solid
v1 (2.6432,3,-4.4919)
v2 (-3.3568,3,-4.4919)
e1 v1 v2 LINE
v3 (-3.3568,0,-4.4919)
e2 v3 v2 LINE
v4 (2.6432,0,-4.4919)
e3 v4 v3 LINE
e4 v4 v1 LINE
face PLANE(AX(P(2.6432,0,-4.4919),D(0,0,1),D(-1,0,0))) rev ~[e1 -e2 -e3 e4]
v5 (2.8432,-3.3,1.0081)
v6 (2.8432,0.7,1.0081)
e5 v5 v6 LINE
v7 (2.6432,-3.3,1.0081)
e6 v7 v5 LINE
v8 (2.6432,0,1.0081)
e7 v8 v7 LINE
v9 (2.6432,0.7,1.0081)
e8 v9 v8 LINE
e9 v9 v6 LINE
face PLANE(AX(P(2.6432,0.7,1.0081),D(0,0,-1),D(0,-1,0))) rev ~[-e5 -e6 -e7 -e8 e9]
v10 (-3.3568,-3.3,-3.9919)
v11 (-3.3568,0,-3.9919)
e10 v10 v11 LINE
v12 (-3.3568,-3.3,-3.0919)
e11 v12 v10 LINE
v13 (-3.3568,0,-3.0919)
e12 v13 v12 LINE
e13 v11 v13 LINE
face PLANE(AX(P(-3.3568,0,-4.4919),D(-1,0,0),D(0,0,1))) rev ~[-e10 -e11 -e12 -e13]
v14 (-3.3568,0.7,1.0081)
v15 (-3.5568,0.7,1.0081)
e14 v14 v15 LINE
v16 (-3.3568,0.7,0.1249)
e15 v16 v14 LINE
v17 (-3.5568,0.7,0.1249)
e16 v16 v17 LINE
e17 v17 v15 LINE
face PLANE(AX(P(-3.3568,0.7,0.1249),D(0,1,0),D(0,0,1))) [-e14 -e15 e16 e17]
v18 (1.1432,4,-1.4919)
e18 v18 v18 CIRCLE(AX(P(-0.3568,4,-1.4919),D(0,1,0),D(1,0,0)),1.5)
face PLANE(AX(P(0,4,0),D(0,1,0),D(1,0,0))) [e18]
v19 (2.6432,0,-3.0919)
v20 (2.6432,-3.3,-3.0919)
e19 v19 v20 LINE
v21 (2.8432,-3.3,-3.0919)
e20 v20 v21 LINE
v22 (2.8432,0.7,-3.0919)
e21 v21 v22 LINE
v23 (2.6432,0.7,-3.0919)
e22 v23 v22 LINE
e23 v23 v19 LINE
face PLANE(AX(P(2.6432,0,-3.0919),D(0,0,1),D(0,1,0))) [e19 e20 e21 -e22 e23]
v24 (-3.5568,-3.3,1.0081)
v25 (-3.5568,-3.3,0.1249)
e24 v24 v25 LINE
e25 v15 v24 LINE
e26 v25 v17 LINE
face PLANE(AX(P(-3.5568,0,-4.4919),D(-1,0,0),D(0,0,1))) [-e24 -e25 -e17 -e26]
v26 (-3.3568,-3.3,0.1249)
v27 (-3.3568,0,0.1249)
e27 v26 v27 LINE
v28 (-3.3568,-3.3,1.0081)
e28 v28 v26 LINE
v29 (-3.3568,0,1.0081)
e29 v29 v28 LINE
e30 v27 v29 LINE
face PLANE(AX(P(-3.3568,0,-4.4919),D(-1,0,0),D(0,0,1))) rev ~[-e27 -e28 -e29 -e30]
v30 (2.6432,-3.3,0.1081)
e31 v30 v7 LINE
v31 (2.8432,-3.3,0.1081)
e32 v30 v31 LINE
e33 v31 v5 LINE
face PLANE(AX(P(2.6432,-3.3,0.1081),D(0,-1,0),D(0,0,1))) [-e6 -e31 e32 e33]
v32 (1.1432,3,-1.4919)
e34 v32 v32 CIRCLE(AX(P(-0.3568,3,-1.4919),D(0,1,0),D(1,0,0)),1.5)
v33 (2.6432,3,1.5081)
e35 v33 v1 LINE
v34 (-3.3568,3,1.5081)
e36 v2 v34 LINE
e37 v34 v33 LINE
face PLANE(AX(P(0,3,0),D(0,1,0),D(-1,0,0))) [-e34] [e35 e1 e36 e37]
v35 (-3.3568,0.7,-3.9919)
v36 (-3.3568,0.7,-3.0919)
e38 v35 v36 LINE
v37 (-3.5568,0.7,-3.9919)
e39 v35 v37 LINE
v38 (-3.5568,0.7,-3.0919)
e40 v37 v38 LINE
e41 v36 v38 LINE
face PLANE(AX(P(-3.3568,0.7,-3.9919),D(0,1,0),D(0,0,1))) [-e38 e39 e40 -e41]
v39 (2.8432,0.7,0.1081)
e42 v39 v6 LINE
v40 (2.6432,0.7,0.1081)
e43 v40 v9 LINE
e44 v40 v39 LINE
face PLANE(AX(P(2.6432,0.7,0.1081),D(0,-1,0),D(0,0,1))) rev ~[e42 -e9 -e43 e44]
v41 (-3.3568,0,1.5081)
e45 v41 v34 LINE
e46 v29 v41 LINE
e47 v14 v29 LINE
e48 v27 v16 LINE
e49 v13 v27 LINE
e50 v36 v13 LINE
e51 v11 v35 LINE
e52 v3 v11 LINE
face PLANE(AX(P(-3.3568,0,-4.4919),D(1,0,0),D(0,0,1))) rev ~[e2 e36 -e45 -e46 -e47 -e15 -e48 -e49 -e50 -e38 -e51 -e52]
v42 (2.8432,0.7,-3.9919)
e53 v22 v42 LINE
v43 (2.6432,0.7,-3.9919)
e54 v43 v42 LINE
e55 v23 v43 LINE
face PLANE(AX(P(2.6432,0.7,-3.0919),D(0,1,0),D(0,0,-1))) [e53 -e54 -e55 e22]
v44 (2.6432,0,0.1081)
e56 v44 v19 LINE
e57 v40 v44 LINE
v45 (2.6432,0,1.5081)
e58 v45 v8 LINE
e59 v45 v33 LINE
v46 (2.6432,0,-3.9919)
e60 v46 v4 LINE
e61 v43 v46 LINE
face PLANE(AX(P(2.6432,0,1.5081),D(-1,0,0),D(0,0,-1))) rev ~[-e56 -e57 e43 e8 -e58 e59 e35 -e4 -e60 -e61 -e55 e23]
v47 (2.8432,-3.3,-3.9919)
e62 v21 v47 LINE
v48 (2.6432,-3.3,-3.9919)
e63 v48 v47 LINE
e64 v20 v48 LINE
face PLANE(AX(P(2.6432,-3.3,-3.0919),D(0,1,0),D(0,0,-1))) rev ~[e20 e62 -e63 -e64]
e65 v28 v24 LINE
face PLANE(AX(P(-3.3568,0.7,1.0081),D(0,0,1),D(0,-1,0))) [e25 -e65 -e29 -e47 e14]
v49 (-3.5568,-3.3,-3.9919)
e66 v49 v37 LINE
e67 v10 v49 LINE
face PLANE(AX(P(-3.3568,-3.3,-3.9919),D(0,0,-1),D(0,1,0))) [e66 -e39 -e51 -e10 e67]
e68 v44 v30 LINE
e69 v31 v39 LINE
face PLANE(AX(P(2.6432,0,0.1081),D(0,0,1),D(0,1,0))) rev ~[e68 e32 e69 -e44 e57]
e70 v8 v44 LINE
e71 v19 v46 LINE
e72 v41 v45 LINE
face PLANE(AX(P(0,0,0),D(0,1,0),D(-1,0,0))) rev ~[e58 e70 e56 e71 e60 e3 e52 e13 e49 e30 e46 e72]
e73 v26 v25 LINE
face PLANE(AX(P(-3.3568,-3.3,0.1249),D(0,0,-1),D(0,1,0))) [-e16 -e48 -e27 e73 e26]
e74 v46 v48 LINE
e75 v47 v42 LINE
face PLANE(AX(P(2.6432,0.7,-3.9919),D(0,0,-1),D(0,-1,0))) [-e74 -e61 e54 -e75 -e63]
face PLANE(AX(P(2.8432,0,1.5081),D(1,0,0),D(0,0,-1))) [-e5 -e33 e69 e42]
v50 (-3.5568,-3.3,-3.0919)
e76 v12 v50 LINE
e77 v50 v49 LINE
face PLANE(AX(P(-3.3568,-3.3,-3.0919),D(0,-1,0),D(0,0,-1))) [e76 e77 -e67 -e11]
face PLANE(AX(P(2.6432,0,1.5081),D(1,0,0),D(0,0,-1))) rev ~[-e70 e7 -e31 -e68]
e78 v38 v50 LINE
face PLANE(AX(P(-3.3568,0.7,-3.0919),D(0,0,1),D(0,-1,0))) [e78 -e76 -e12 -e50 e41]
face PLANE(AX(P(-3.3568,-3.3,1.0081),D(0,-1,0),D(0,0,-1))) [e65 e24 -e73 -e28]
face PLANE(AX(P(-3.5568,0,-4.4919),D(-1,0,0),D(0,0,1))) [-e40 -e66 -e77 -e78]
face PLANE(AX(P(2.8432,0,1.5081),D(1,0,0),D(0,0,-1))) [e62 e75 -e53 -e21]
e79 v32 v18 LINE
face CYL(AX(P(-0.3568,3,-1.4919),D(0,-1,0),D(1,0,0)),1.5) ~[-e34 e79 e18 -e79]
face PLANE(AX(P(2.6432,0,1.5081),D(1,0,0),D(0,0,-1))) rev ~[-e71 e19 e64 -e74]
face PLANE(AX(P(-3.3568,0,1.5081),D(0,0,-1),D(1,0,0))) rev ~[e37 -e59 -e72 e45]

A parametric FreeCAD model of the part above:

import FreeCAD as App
import Part
import Sketcher
Q = App.Units.Quantity

doc = App.newDocument("Part")
body = doc.addObject("PartDesign::Body", "Body")

# Sketch on XZ plane
sketch1 = doc.addObject("Sketcher::SketchObject", "Sketch")
body.addObject(sketch1)
sketch1.AttachmentSupport = (doc.XZ_Plane, [""])
sketch1.MapMode = "FlatFace"
sketch1.addGeometry(Part.LineSegment(App.Vector(-3.3568, -4.4919, 0), App.Vector(-3.3568, 1.5081, 0)), False)
sketch1.addGeometry(Part.LineSegment(App.Vector(-3.3568, 1.5081, 0), App.Vector(2.6432, 1.5081, 0)), False)
sketch1.addGeometry(Part.LineSegment(App.Vector(2.6432, 1.5081, 0), App.Vector(2.6432, -4.4919, 0)), False)
sketch1.addGeometry(Part.LineSegment(App.Vector(2.6432, -4.4919, 0), App.Vector(-3.3568, -4.4919, 0)), False)
sketch1.addConstraint(Sketcher.Constraint("Coincident", 0, 2, 1, 1))
sketch1.addConstraint(Sketcher.Constraint("Coincident", 1, 2, 2, 1))
sketch1.addConstraint(Sketcher.Constraint("Coincident", 2, 2, 3, 1))
sketch1.addConstraint(Sketcher.Constraint("Coincident", 3, 2, 0, 1))
sketch1.addConstraint(Sketcher.Constraint("Vertical", 0))
sketch1.addConstraint(Sketcher.Constraint("Horizontal", 1))
sketch1.addConstraint(Sketcher.Constraint("Vertical", 2))
sketch1.addConstraint(Sketcher.Constraint("Horizontal", 3))
sketch1.addConstraint(Sketcher.Constraint("Equal", 3, 0))
sketch1.addConstraint(Sketcher.Constraint("DistanceX", 1, 1, 1, 2, Q("6 mm")))
sketch1.addConstraint(Sketcher.Constraint("DistanceY", -1, 1, 0, 2, Q("1.508 mm")))
sketch1.addConstraint(Sketcher.Constraint("DistanceX", 0, 2, -1, 1, Q("3.3568 mm")))
pad1 = doc.addObject("PartDesign::Pad", "Pad")
body.addObject(pad1)
pad1.Profile = sketch1
pad1.Length = 3
pad1.Reversed = True

# Sketch on XZ plane
sketch2 = doc.addObject("Sketcher::SketchObject", "Sketch001")
body.addObject(sketch2)
sketch2.AttachmentSupport = (doc.XZ_Plane, [""])
sketch2.MapMode = "FlatFace"
sketch2.AttachmentOffset = App.Placement(App.Vector(0, 0, -3), App.Rotation())
sketch2.addGeometry(Part.Circle(App.Vector(-0.3568, -1.4919, 0), App.Vector(0, 0, 1), 1.5), False)
sketch2.addConstraint(Sketcher.Constraint("Diameter", 0, Q("3 mm")))
sketch2.addConstraint(Sketcher.Constraint("DistanceY", 0, 3, -1, 1, Q("1.492 mm")))
sketch2.addConstraint(Sketcher.Constraint("DistanceX", 0, 3, -1, 1, Q("0.3568 mm")))
pad2 = doc.addObject("PartDesign::Pad", "Pad001")
body.addObject(pad2)
pad2.Profile = sketch2
pad2.Length = 1
pad2.Reversed = True

# Sketch on YZ plane
sketch3 = doc.addObject("Sketcher::SketchObject", "Sketch002")
body.addObject(sketch3)
sketch3.AttachmentSupport = (doc.YZ_Plane, [""])
sketch3.MapMode = "FlatFace"
sketch3.AttachmentOffset = App.Placement(App.Vector(0, 0, 2.6432), App.Rotation())
sketch3.addGeometry(Part.LineSegment(App.Vector(0.7, -3.0919, 0), App.Vector(-3.3, -3.0919, 0)), False)
sketch3.addGeometry(Part.LineSegment(App.Vector(-3.3, -3.0919, 0), App.Vector(-3.3, -3.9919, 0)), False)
sketch3.addGeometry(Part.LineSegment(App.Vector(-3.3, -3.9919, 0), App.Vector(0.7, -3.9919, 0)), False)
sketch3.addGeometry(Part.LineSegment(App.Vector(0.7, -3.9919, 0), App.Vector(0.7, -3.0919, 0)), False)
sketch3.addGeometry(Part.LineSegment(App.Vector(0.7, 1.0081, 0), App.Vector(-3.3, 1.0081, 0)), False)
sketch3.addGeometry(Part.LineSegment(App.Vector(-3.3, 1.0081, 0), App.Vector(-3.3, 0.1081, 0)), False)
sketch3.addGeometry(Part.LineSegment(App.Vector(-3.3, 0.1081, 0), App.Vector(0.7, 0.1081, 0)), False)
sketch3.addGeometry(Part.LineSegment(App.Vector(0.7, 0.1081, 0), App.Vector(0.7, 1.0081, 0)), False)
sketch3.addConstraint(Sketcher.Constraint("Coincident", 0, 2, 1, 1))
sketch3.addConstraint(Sketcher.Constraint("Coincident", 1, 2, 2, 1))
sketch3.addConstraint(Sketcher.Constraint("Coincident", 2, 2, 3, 1))
sketch3.addConstraint(Sketcher.Constraint("Coincident", 3, 2, 0, 1))
sketch3.addConstraint(Sketcher.Constraint("Coincident", 4, 2, 5, 1))
sketch3.addConstraint(Sketcher.Constraint("Coincident", 5, 2, 6, 1))
sketch3.addConstraint(Sketcher.Constraint("Coincident", 6, 2, 7, 1))
sketch3.addConstraint(Sketcher.Constraint("Coincident", 7, 2, 4, 1))
sketch3.addConstraint(Sketcher.Constraint("Horizontal", 0))
sketch3.addConstraint(Sketcher.Constraint("Vertical", 1))
sketch3.addConstraint(Sketcher.Constraint("Horizontal", 2))
sketch3.addConstraint(Sketcher.Constraint("Vertical", 3))
sketch3.addConstraint(Sketcher.Constraint("Horizontal", 4))
sketch3.addConstraint(Sketcher.Constraint("Vertical", 5))
sketch3.addConstraint(Sketcher.Constraint("Horizontal", 6))
sketch3.addConstraint(Sketcher.Constraint("Vertical", 7))
sketch3.addConstraint(Sketcher.Constraint("Vertical", 1, 2, 4, 2))
sketch3.addConstraint(Sketcher.Constraint("Vertical", 3, 2, 6, 2))
sketch3.addConstraint(Sketcher.Constraint("Equal", 3, 5))
sketch3.addConstraint(Sketcher.Constraint("DistanceY", 1, 2, 1, 1, Q("0.9 mm")))
sketch3.addConstraint(Sketcher.Constraint("DistanceX", 0, 2, -1, 1, Q("3.3 mm")))
sketch3.addConstraint(Sketcher.Constraint("DistanceX", -1, 1, 2, 2, Q("0.7 mm")))
sketch3.addConstraint(Sketcher.Constraint("DistanceY", 1, 2, 4, 2, Q("5 mm")))
sketch3.addConstraint(Sketcher.Constraint("DistanceY", 0, 2, -1, 1, Q("3.092 mm")))
pad3 = doc.addObject("PartDesign::Pad", "Pad002")
body.addObject(pad3)
pad3.Profile = sketch3
pad3.Length = 0.2

# Sketch on YZ plane
sketch4 = doc.addObject("Sketcher::SketchObject", "Sketch003")
body.addObject(sketch4)
sketch4.AttachmentSupport = (doc.YZ_Plane, [""])
sketch4.MapMode = "FlatFace"
sketch4.AttachmentOffset = App.Placement(App.Vector(0, 0, -3.3568), App.Rotation())
sketch4.addGeometry(Part.LineSegment(App.Vector(0.7, -3.9919, 0), App.Vector(-3.3, -3.9919, 0)), False)
sketch4.addGeometry(Part.LineSegment(App.Vector(-3.3, -3.9919, 0), App.Vector(-3.3, -3.0919, 0)), False)
sketch4.addGeometry(Part.LineSegment(App.Vector(-3.3, -3.0919, 0), App.Vector(0.7, -3.0919, 0)), False)
sketch4.addGeometry(Part.LineSegment(App.Vector(0.7, -3.0919, 0), App.Vector(0.7, -3.9919, 0)), False)
sketch4.addGeometry(Part.LineSegment(App.Vector(-3.3, 1.0081, 0), App.Vector(0.7, 1.0081, 0)), False)
sketch4.addGeometry(Part.LineSegment(App.Vector(0.7, 1.0081, 0), App.Vector(0.7, 0.1249, 0)), False)
sketch4.addGeometry(Part.LineSegment(App.Vector(0.7, 0.1249, 0), App.Vector(-3.3, 0.1249, 0)), False)
sketch4.addGeometry(Part.LineSegment(App.Vector(-3.3, 0.1249, 0), App.Vector(-3.3, 1.0081, 0)), False)
sketch4.addConstraint(Sketcher.Constraint("Coincident", 0, 2, 1, 1))
sketch4.addConstraint(Sketcher.Constraint("Coincident", 1, 2, 2, 1))
sketch4.addConstraint(Sketcher.Constraint("Coincident", 2, 2, 3, 1))
sketch4.addConstraint(Sketcher.Constraint("Coincident", 3, 2, 0, 1))
sketch4.addConstraint(Sketcher.Constraint("Coincident", 4, 2, 5, 1))
sketch4.addConstraint(Sketcher.Constraint("Coincident", 5, 2, 6, 1))
sketch4.addConstraint(Sketcher.Constraint("Coincident", 6, 2, 7, 1))
sketch4.addConstraint(Sketcher.Constraint("Coincident", 7, 2, 4, 1))
sketch4.addConstraint(Sketcher.Constraint("Horizontal", 0))
sketch4.addConstraint(Sketcher.Constraint("Vertical", 1))
sketch4.addConstraint(Sketcher.Constraint("Horizontal", 2))
sketch4.addConstraint(Sketcher.Constraint("Vertical", 3))
sketch4.addConstraint(Sketcher.Constraint("Horizontal", 4))
sketch4.addConstraint(Sketcher.Constraint("Vertical", 5))
sketch4.addConstraint(Sketcher.Constraint("Horizontal", 6))
sketch4.addConstraint(Sketcher.Constraint("Vertical", 7))
sketch4.addConstraint(Sketcher.Constraint("Vertical", 3, 2, 4, 2))
sketch4.addConstraint(Sketcher.Constraint("Vertical", 1, 2, 6, 2))
sketch4.addConstraint(Sketcher.Constraint("DistanceX", 0, 2, 0, 1, Q("4 mm")))
sketch4.addConstraint(Sketcher.Constraint("DistanceY", 1, 1, 1, 2, Q("0.9 mm")))
sketch4.addConstraint(Sketcher.Constraint("DistanceY", 3, 2, 4, 2, Q("5 mm")))
sketch4.addConstraint(Sketcher.Constraint("DistanceX", 0, 2, -1, 1, Q("3.3 mm")))
sketch4.addConstraint(Sketcher.Constraint("DistanceY", 5, 2, 5, 1, Q("0.8832 mm")))
sketch4.addConstraint(Sketcher.Constraint("DistanceY", 0, 2, -1, 1, Q("3.992 mm")))
pad4 = doc.addObject("PartDesign::Pad", "Pad003")
body.addObject(pad4)
pad4.Profile = sketch4
pad4.Length = 0.2
pad4.Reversed = True

doc.recompute()
